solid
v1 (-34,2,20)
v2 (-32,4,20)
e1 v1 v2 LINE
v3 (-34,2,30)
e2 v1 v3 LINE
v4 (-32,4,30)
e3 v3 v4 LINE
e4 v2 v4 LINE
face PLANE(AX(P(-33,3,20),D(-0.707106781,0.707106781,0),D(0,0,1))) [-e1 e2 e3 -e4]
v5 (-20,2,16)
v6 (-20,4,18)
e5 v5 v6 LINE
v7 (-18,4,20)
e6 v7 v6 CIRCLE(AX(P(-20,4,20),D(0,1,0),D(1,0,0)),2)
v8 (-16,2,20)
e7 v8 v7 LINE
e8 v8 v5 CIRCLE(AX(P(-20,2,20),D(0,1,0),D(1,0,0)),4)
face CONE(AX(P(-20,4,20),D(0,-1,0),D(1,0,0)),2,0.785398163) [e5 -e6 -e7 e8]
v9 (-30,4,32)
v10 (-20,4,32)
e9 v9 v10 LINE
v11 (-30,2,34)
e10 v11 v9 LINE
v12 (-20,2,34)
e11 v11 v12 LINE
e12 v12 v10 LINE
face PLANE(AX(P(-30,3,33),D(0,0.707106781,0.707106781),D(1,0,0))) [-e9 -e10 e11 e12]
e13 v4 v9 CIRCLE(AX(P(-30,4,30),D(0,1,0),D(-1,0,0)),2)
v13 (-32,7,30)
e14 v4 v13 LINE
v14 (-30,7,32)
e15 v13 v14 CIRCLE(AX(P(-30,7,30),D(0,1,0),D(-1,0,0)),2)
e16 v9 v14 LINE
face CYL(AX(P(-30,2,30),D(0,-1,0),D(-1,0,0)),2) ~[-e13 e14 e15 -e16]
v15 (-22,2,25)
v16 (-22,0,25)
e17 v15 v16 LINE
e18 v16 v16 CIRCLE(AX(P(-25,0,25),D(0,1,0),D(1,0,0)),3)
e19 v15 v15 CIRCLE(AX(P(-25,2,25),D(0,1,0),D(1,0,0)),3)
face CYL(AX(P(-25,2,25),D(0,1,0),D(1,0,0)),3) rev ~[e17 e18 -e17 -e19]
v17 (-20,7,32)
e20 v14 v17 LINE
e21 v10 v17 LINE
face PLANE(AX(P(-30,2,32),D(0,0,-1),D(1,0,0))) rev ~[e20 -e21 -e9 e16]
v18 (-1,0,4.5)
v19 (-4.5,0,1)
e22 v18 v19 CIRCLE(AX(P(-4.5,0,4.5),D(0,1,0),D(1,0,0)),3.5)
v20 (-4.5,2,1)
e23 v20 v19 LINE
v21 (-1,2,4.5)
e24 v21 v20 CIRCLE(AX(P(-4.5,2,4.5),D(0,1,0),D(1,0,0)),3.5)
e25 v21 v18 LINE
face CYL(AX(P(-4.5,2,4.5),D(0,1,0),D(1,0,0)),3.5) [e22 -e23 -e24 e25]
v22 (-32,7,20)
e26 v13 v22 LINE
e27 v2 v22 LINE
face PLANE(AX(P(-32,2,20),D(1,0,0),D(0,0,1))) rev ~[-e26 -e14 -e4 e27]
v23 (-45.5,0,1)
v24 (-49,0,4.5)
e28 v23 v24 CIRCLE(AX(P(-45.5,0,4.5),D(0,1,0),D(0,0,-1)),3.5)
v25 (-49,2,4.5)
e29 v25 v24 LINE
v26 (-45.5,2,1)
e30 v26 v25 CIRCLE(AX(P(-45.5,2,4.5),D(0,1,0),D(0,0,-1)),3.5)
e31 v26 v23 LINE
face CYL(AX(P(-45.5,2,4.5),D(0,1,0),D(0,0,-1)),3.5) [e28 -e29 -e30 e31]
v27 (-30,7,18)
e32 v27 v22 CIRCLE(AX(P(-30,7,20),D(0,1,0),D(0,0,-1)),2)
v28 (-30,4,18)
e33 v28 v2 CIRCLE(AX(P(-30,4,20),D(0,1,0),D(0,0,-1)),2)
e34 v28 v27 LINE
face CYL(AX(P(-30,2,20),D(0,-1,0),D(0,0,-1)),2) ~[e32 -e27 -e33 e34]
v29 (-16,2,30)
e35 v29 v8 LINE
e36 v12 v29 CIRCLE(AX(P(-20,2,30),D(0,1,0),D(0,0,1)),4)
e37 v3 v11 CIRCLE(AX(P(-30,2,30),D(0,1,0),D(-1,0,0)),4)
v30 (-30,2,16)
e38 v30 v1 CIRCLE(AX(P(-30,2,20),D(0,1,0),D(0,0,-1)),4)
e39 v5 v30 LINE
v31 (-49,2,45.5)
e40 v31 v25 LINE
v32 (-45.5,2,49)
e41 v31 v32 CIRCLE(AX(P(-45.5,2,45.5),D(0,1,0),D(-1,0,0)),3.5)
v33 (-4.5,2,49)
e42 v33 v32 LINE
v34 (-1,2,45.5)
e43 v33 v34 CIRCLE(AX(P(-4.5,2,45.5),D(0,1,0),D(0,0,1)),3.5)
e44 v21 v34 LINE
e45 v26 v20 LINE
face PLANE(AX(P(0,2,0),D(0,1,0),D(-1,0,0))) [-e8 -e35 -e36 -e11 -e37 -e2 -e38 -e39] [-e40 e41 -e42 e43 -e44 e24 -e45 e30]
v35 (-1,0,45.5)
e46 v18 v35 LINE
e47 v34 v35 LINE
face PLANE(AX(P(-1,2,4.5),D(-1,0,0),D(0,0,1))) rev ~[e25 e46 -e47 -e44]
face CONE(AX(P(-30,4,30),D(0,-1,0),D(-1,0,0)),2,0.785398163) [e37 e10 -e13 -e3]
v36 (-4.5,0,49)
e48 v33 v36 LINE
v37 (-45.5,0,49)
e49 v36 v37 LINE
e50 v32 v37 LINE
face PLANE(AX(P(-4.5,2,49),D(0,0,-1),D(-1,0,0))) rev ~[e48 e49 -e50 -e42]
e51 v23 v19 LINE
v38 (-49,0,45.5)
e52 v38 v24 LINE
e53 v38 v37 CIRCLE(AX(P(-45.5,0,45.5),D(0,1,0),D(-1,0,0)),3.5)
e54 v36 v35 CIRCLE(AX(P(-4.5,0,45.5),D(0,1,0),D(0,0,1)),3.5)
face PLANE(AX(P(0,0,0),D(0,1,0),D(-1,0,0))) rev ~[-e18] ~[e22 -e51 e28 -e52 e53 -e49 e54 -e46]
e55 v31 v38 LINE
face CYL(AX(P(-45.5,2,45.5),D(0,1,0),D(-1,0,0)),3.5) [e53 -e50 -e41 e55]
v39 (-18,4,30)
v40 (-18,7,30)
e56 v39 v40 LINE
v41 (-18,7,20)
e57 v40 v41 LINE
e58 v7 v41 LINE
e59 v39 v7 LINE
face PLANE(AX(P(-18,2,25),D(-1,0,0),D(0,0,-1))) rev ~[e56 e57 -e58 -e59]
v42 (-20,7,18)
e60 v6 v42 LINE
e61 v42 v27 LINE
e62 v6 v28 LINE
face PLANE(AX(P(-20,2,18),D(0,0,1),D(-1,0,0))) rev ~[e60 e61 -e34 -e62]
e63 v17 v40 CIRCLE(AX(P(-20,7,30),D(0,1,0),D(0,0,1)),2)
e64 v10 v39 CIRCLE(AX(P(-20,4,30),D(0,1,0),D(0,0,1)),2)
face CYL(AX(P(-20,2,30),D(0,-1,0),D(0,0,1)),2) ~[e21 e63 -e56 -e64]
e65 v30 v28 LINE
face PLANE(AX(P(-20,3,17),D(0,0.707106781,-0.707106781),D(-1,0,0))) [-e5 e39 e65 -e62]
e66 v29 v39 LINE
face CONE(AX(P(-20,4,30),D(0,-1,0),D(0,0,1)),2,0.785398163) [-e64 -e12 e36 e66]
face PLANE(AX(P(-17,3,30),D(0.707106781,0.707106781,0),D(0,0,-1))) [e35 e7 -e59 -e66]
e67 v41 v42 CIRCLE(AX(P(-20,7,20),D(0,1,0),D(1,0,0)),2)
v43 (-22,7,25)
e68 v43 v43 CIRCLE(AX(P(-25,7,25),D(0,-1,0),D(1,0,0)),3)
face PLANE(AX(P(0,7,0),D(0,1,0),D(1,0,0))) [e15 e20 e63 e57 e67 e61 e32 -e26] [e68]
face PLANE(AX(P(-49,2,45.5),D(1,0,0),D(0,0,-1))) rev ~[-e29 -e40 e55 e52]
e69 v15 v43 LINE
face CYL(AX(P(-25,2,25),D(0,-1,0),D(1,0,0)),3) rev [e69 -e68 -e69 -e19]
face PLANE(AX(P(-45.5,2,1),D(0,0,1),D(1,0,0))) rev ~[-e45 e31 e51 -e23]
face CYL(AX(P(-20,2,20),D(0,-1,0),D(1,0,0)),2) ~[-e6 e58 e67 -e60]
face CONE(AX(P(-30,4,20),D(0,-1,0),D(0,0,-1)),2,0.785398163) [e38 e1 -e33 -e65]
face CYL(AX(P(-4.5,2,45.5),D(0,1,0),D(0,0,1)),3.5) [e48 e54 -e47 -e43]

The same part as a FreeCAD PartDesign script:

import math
import FreeCAD as App
import Part
import Sketcher


def edges_at(feature, points):
    """Names of the edges that pass closest to the given points."""
    edges = feature.Shape.Edges
    near = lambda p: min(range(len(edges)), key=lambda i: edges[i].distToShape(Part.Vertex(*p))[0])
    return sorted({f"Edge{near(p) + 1}" for p in points})

doc = App.newDocument("Part")
body = doc.addObject("PartDesign::Body", "Body")

sketch1 = body.newObject("Sketcher::SketchObject", "Sketch")
sketch1.AttachmentSupport = (doc.getObject("XZ_Plane"), [""])
sketch1.MapMode = "FlatFace"
sketch1.addGeometry(Part.ArcOfCircle(Part.Circle(App.Vector(-4.5, 4.5, 0), App.Vector(0, 0, 1), 4.5), math.radians(-90), math.radians(0)), False)
sketch1.addGeometry(Part.LineSegment(App.Vector(-4.5, 0, 0), App.Vector(-45.5, 0, 0)), False)
sketch1.addGeometry(Part.ArcOfCircle(Part.Circle(App.Vector(-45.5, 4.5, 0), App.Vector(0, 0, 1), 4.5), math.radians(180), math.radians(270)), False)
sketch1.addGeometry(Part.LineSegment(App.Vector(-50, 4.5, 0), App.Vector(-50, 45.5, 0)), False)
sketch1.addGeometry(Part.ArcOfCircle(Part.Circle(App.Vector(-45.5, 45.5, 0), App.Vector(0, 0, 1), 4.5), math.radians(90), math.radians(180)), False)
sketch1.addGeometry(Part.LineSegment(App.Vector(-45.5, 50, 0), App.Vector(-4.5, 50, 0)), False)
sketch1.addGeometry(Part.ArcOfCircle(Part.Circle(App.Vector(-4.5, 45.5, 0), App.Vector(0, 0, 1), 4.5), math.radians(0), math.radians(90)), False)
sketch1.addGeometry(Part.LineSegment(App.Vector(0, 45.5, 0), App.Vector(0, 4.5, 0)), False)
sketch1.addConstraint(Sketcher.Constraint("Tangent", 0, 1, 1, 1))
sketch1.addConstraint(Sketcher.Constraint("Tangent", 1, 2, 2, 2))
sketch1.addConstraint(Sketcher.Constraint("Tangent", 2, 1, 3, 1))
sketch1.addConstraint(Sketcher.Constraint("Tangent", 3, 2, 4, 2))
sketch1.addConstraint(Sketcher.Constraint("Tangent", 4, 1, 5, 1))
sketch1.addConstraint(Sketcher.Constraint("Tangent", 5, 2, 6, 2))
sketch1.addConstraint(Sketcher.Constraint("Tangent", 6, 1, 7, 1))
sketch1.addConstraint(Sketcher.Constraint("Tangent", 7, 2, 0, 2))
sketch1.addConstraint(Sketcher.Constraint("Horizontal", 1))
sketch1.addConstraint(Sketcher.Constraint("Vertical", 3))
sketch1.addConstraint(Sketcher.Constraint("Horizontal", 5))
sketch1.addConstraint(Sketcher.Constraint("Vertical", 7))
sketch1.addConstraint(Sketcher.Constraint("Equal", 0, 2))
sketch1.addConstraint(Sketcher.Constraint("Equal", 2, 4))
sketch1.addConstraint(Sketcher.Constraint("Equal", 4, 6))
sketch1.addConstraint(Sketcher.Constraint("PointOnObject", 0, 1, -1))
sketch1.addConstraint(Sketcher.Constraint("PointOnObject", 6, 1, -2))
sketch1.addConstraint(Sketcher.Constraint("Equal", 5, 3))
sketch1.addConstraint(Sketcher.Constraint("Radius", 0, 4.5))
sketch1.addConstraint(Sketcher.Constraint("DistanceX", 2, 1, -1, 1, 50.0))
pad1 = body.newObject("PartDesign::Pad", "Pad")
pad1.Profile = sketch1
pad1.Length = 2
pad1.Reversed = True

sketch2 = body.newObject("Sketcher::SketchObject", "Sketch001")
sketch2.AttachmentSupport = (doc.getObject("XZ_Plane"), [""])
sketch2.MapMode = "FlatFace"
sketch2.AttachmentOffset = App.Placement(App.Vector(0, 0, -2), App.Rotation())
sketch2.addGeometry(Part.LineSegment(App.Vector(-32, 20, 0), App.Vector(-32, 30, 0)), False)
sketch2.addGeometry(Part.ArcOfCircle(Part.Circle(App.Vector(-30, 30, 0), App.Vector(0, 0, 1), 2), math.radians(90), math.radians(180)), False)
sketch2.addGeometry(Part.LineSegment(App.Vector(-30, 32, 0), App.Vector(-20, 32, 0)), False)
sketch2.addGeometry(Part.ArcOfCircle(Part.Circle(App.Vector(-20, 30, 0), App.Vector(0, 0, 1), 2), math.radians(0), math.radians(90)), False)
sketch2.addGeometry(Part.LineSegment(App.Vector(-18, 30, 0), App.Vector(-18, 20, 0)), False)
sketch2.addGeometry(Part.ArcOfCircle(Part.Circle(App.Vector(-20, 20, 0), App.Vector(0, 0, 1), 2), math.radians(-90), math.radians(0)), False)
sketch2.addGeometry(Part.LineSegment(App.Vector(-20, 18, 0), App.Vector(-30, 18, 0)), False)
sketch2.addGeometry(Part.ArcOfCircle(Part.Circle(App.Vector(-30, 20, 0), App.Vector(0, 0, 1), 2), math.radians(180), math.radians(270)), False)
sketch2.addGeometry(Part.Circle(App.Vector(-25, 25, 0), App.Vector(0, 0, 1), 3), False)
sketch2.addConstraint(Sketcher.Constraint("Tangent", 0, 2, 1, 2))
sketch2.addConstraint(Sketcher.Constraint("Tangent", 1, 1, 2, 1))
sketch2.addConstraint(Sketcher.Constraint("Tangent", 2, 2, 3, 2))
sketch2.addConstraint(Sketcher.Constraint("Tangent", 3, 1, 4, 1))
sketch2.addConstraint(Sketcher.Constraint("Tangent", 4, 2, 5, 2))
sketch2.addConstraint(Sketcher.Constraint("Tangent", 5, 1, 6, 1))
sketch2.addConstraint(Sketcher.Constraint("Tangent", 6, 2, 7, 2))
sketch2.addConstraint(Sketcher.Constraint("Tangent", 7, 1, 0, 1))
sketch2.addConstraint(Sketcher.Constraint("Vertical", 0))
sketch2.addConstraint(Sketcher.Constraint("Horizontal", 2))
sketch2.addConstraint(Sketcher.Constraint("Vertical", 4))
sketch2.addConstraint(Sketcher.Constraint("Horizontal", 6))
sketch2.addConstraint(Sketcher.Constraint("Equal", 1, 3))
sketch2.addConstraint(Sketcher.Constraint("Equal", 3, 5))
sketch2.addConstraint(Sketcher.Constraint("Equal", 5, 7))
sketch2.addConstraint(Sketcher.Constraint("Equal", 6, 0))
sketch2.addConstraint(Sketcher.Constraint("Diameter", 8, 6.0))
sketch2.addConstraint(Sketcher.Constraint("Radius", 1, 2.0))
sketch2.addConstraint(Sketcher.Constraint("DistanceX", 2, 1, 2, 2, 10.0))
sketch2.addConstraint(Sketcher.Constraint("DistanceX", 1, 3, -1, 1, 30.0))
sketch2.addConstraint(Sketcher.Constraint("DistanceY", -1, 1, 1, 3, 30.0))
sketch2.addConstraint(Sketcher.Constraint("DistanceX", 8, 3, -1, 1, 25.0))
sketch2.addConstraint(Sketcher.Constraint("DistanceY", -1, 1, 8, 3, 25.0))
pad2 = body.newObject("PartDesign::Pad", "Pad001")
pad2.Profile = sketch2
pad2.Length = 5
pad2.Reversed = True
doc.recompute()

chamfer = body.newObject("PartDesign::Chamfer", "Chamfer")
chamfer.Base = (pad2, edges_at(pad2, [
    (-25, 2, 32),
    (-31.414, 2, 31.414),
    (-32, 2, 25),
    (-31.414, 2, 18.586),
    (-25, 2, 18),
    (-18.586, 2, 18.586),
    (-18, 2, 25),
    (-18.586, 2, 31.414),
]))
chamfer.Size = 2

sketch3 = body.newObject("Sketcher::SketchObject", "Sketch002")
sketch3.AttachmentSupport = (doc.getObject("XZ_Plane"), [""])
sketch3.MapMode = "FlatFace"
sketch3.AttachmentOffset = App.Placement(App.Vector(0, 0, -2), App.Rotation())
sketch3.addGeometry(Part.Circle(App.Vector(-25, 25, 0), App.Vector(0, 0, 1), 3), False)
sketch3.addConstraint(Sketcher.Constraint("Diameter", 0, 6.0))
sketch3.addConstraint(Sketcher.Constraint("DistanceX", 0, 3, -1, 1, 25.0))
sketch3.addConstraint(Sketcher.Constraint("DistanceY", -1, 1, 0, 3, 25.0))
pocket1 = body.newObject("PartDesign::Pocket", "Pocket")
pocket1.Profile = sketch3
pocket1.Length = 5
pocket1.Reversed = True

sketch4 = body.newObject("Sketcher::SketchObject", "Sketch003")
sketch4.AttachmentSupport = (doc.getObject("XZ_Plane"), [""])
sketch4.MapMode = "FlatFace"
sketch4.AttachmentOffset = App.Placement(App.Vector(0, 0, -2), App.Rotation())
sketch4.addGeometry(Part.LineSegment(App.Vector(-4.5, 0, 0), App.Vector(-45.5, 0, 0)), False)
sketch4.addGeometry(Part.ArcOfCircle(Part.Circle(App.Vector(-45.5, 4.5, 0), App.Vector(0, 0, 1), 4.5), math.radians(180), math.radians(270)), False)
sketch4.addGeometry(Part.LineSegment(App.Vector(-50, 4.5, 0), App.Vector(-50, 45.5, 0)), False)
sketch4.addGeometry(Part.ArcOfCircle(Part.Circle(App.Vector(-45.5, 45.5, 0), App.Vector(0, 0, 1), 4.5), math.radians(90), math.radians(180)), False)
sketch4.addGeometry(Part.LineSegment(App.Vector(-45.5, 50, 0), App.Vector(-4.5, 50, 0)), False)
sketch4.addGeometry(Part.ArcOfCircle(Part.Circle(App.Vector(-4.5, 45.5, 0), App.Vector(0, 0, 1), 4.5), math.radians(0), math.radians(90)), False)
sketch4.addGeometry(Part.LineSegment(App.Vector(0, 45.5, 0), App.Vector(0, 4.5, 0)), False)
sketch4.addGeometry(Part.ArcOfCircle(Part.Circle(App.Vector(-4.5, 4.5, 0), App.Vector(0, 0, 1), 4.5), math.radians(-90), math.radians(0)), False)
sketch4.addGeometry(Part.ArcOfCircle(Part.Circle(App.Vector(-4.5, 4.5, 0), App.Vector(0, 0, 1), 3.5), math.radians(-90), math.radians(0)), False)
sketch4.addGeometry(Part.LineSegment(App.Vector(-1, 4.5, 0), App.Vector(-1, 45.5, 0)), False)
sketch4.addGeometry(Part.ArcOfCircle(Part.Circle(App.Vector(-4.5, 45.5, 0), App.Vector(0, 0, 1), 3.5), math.radians(0), math.radians(90)), False)
sketch4.addGeometry(Part.LineSegment(App.Vector(-4.5, 49, 0), App.Vector(-45.5, 49, 0)), False)
sketch4.addGeometry(Part.ArcOfCircle(Part.Circle(App.Vector(-45.5, 45.5, 0), App.Vector(0, 0, 1), 3.5), math.radians(90), math.radians(180)), False)
sketch4.addGeometry(Part.LineSegment(App.Vector(-49, 45.5, 0), App.Vector(-49, 4.5, 0)), False)
sketch4.addGeometry(Part.ArcOfCircle(Part.Circle(App.Vector(-45.5, 4.5, 0), App.Vector(0, 0, 1), 3.5), math.radians(180), math.radians(270)), False)
sketch4.addGeometry(Part.LineSegment(App.Vector(-45.5, 1, 0), App.Vector(-4.5, 1, 0)), False)
sketch4.addConstraint(Sketcher.Constraint("Tangent", 0, 2, 1, 2))
sketch4.addConstraint(Sketcher.Constraint("Tangent", 1, 1, 2, 1))
sketch4.addConstraint(Sketcher.Constraint("Tangent", 2, 2, 3, 2))
sketch4.addConstraint(Sketcher.Constraint("Tangent", 3, 1, 4, 1))
sketch4.addConstraint(Sketcher.Constraint("Tangent", 4, 2, 5, 2))
sketch4.addConstraint(Sketcher.Constraint("Tangent", 5, 1, 6, 1))
sketch4.addConstraint(Sketcher.Constraint("Tangent", 6, 2, 7, 2))
sketch4.addConstraint(Sketcher.Constraint("Tangent", 7, 1, 0, 1))
sketch4.addConstraint(Sketcher.Constraint("Tangent", 8, 2, 9, 1))
sketch4.addConstraint(Sketcher.Constraint("Tangent", 9, 2, 10, 1))
sketch4.addConstraint(Sketcher.Constraint("Tangent", 10, 2, 11, 1))
sketch4.addConstraint(Sketcher.Constraint("Tangent", 11, 2, 12, 1))
sketch4.addConstraint(Sketcher.Constraint("Tangent", 12, 2, 13, 1))
sketch4.addConstraint(Sketcher.Constraint("Tangent", 13, 2, 14, 1))
sketch4.addConstraint(Sketcher.Constraint("Tangent", 14, 2, 15, 1))
sketch4.addConstraint(Sketcher.Constraint("Tangent", 15, 2, 8, 1))
sketch4.addConstraint(Sketcher.Constraint("Horizontal", 0))
sketch4.addConstraint(Sketcher.Constraint("Vertical", 2))
sketch4.addConstraint(Sketcher.Constraint("Horizontal", 4))
sketch4.addConstraint(Sketcher.Constraint("Vertical", 6))
sketch4.addConstraint(Sketcher.Constraint("Vertical", 9))
sketch4.addConstraint(Sketcher.Constraint("Horizontal", 11))
sketch4.addConstraint(Sketcher.Constraint("Vertical", 13))
sketch4.addConstraint(Sketcher.Constraint("Horizontal", 15))
sketch4.addConstraint(Sketcher.Constraint("Coincident", 8, 3, 7, 3))
sketch4.addConstraint(Sketcher.Constraint("Coincident", 10, 3, 5, 3))
sketch4.addConstraint(Sketcher.Constraint("Coincident", 12, 3, 3, 3))
sketch4.addConstraint(Sketcher.Constraint("Equal", 1, 3))
sketch4.addConstraint(Sketcher.Constraint("Equal", 3, 5))
sketch4.addConstraint(Sketcher.Constraint("Equal", 5, 7))
sketch4.addConstraint(Sketcher.Constraint("Equal", 12, 14))
sketch4.addConstraint(Sketcher.Constraint("PointOnObject", 0, 2, -1))
sketch4.addConstraint(Sketcher.Constraint("PointOnObject", 5, 1, -2))
sketch4.addConstraint(Sketcher.Constraint("Equal", 15, 2))
sketch4.addConstraint(Sketcher.Constraint("DistanceX", 8, 2, -1, 1, 1.0))
sketch4.addConstraint(Sketcher.Constraint("Radius", 1, 4.5))
sketch4.addConstraint(Sketcher.Constraint("DistanceX", 0, 2, 0, 1, 41.0))
pocket2 = body.newObject("PartDesign::Pocket", "Pocket001")
pocket2.Profile = sketch4
pocket2.Length = 10
pocket2.Reversed = True

doc.recompute()
